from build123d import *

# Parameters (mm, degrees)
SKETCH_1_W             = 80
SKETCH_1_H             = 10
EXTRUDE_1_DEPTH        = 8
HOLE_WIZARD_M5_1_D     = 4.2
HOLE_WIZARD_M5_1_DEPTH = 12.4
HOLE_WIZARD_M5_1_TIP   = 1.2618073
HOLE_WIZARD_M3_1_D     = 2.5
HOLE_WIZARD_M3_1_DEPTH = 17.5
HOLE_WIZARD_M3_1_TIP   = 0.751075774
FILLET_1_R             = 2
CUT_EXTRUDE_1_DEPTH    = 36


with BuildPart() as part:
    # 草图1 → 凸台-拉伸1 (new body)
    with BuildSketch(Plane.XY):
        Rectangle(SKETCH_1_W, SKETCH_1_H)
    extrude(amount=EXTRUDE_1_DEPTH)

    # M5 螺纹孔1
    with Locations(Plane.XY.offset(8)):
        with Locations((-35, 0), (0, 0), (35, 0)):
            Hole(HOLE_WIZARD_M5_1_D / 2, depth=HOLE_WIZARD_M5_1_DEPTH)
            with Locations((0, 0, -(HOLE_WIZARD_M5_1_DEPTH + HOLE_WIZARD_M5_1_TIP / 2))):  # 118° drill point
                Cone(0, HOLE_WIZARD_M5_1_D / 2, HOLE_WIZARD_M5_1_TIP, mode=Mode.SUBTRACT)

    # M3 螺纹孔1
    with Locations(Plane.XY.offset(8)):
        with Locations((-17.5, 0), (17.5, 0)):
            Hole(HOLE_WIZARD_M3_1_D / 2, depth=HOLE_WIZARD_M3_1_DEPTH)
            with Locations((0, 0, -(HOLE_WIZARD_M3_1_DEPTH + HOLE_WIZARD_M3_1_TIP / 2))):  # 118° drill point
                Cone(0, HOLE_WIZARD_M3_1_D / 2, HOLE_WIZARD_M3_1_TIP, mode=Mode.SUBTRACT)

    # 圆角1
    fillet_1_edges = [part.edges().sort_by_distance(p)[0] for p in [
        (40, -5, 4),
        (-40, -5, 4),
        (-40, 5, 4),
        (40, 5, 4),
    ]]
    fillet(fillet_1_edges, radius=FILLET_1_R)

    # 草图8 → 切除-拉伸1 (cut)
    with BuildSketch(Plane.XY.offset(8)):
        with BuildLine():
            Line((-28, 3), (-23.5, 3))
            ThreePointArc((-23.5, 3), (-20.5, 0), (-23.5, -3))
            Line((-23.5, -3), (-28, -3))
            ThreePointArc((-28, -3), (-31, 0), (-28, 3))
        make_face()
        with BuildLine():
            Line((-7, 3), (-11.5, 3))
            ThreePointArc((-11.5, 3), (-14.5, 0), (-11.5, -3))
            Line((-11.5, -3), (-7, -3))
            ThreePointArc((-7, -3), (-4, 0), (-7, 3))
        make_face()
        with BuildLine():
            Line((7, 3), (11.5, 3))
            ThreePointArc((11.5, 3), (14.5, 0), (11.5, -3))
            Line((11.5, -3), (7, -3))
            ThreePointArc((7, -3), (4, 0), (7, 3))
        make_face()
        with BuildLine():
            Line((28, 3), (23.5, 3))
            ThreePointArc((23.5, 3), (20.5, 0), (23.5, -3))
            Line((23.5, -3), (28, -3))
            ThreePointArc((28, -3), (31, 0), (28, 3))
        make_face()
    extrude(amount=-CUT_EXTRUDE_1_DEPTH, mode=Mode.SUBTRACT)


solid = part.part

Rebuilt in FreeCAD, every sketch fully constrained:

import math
import FreeCAD as App
import Part
import Sketcher

V = App.Vector
Q = App.Units.Quantity


def edges_at(feature, points):
    """Names of the edges that pass closest to the given points."""
    edges = feature.Shape.Edges
    near = lambda p: min(range(len(edges)), key=lambda i: edges[i].distToShape(Part.Vertex(*p))[0])
    return sorted({f"Edge{near(p) + 1}" for p in points})

doc = App.newDocument("Part")
body = doc.addObject("PartDesign::Body", "Body")

# Sketch on XY plane
sketch1 = doc.addObject("Sketcher::SketchObject", "Sketch")
body.addObject(sketch1)
sketch1.AttachmentSupport = (doc.XY_Plane, [""])
sketch1.MapMode = "FlatFace"
sketch1.addGeometry(Part.LineSegment(V(-40, 5, 0), V(-40, -5, 0)), False)
sketch1.addGeometry(Part.LineSegment(V(-40, -5, 0), V(40, -5, 0)), False)
sketch1.addGeometry(Part.LineSegment(V(40, -5, 0), V(40, 5, 0)), False)
sketch1.addGeometry(Part.LineSegment(V(40, 5, 0), V(-40, 5, 0)), False)
sketch1.addConstraint(Sketcher.Constraint("Coincident", 0, 2, 1, 1))
sketch1.addConstraint(Sketcher.Constraint("Coincident", 1, 2, 2, 1))
sketch1.addConstraint(Sketcher.Constraint("Coincident", 2, 2, 3, 1))
sketch1.addConstraint(Sketcher.Constraint("Coincident", 3, 2, 0, 1))
sketch1.addConstraint(Sketcher.Constraint("Vertical", 0))
sketch1.addConstraint(Sketcher.Constraint("Horizontal", 1))
sketch1.addConstraint(Sketcher.Constraint("Vertical", 2))
sketch1.addConstraint(Sketcher.Constraint("Horizontal", 3))
sketch1.addConstraint(Sketcher.Constraint("Symmetric", 0, 2, 2, 2, -1, 1))
sketch1.addConstraint(Sketcher.Constraint("DistanceX", 1, 1, 1, 2, Q("80 mm")))
sketch1.addConstraint(Sketcher.Constraint("DistanceY", 0, 2, 0, 1, Q("10 mm")))
pad1 = doc.addObject("PartDesign::Pad", "Pad")
body.addObject(pad1)
pad1.Profile = sketch1
pad1.Length = 8

# Sketch on XY plane
sketch2 = doc.addObject("Sketcher::SketchObject", "Sketch001")
body.addObject(sketch2)
sketch2.AttachmentSupport = (doc.XY_Plane, [""])
sketch2.MapMode = "FlatFace"
sketch2.AttachmentOffset = App.Placement(V(0, 0, 8), App.Rotation())
sketch2.addGeometry(Part.Circle(V(-35, 0, 0), V(0, 0, 1), 2.1), False)
sketch2.addGeometry(Part.Circle(V(0, 0, 0), V(0, 0, 1), 2.1), False)
sketch2.addGeometry(Part.Circle(V(35, 0, 0), V(0, 0, 1), 2.1), False)
sketch2.addConstraint(Sketcher.Constraint("Coincident", 1, 3, -1, 1))
sketch2.addConstraint(Sketcher.Constraint("Equal", 0, 1))
sketch2.addConstraint(Sketcher.Constraint("Equal", 1, 2))
sketch2.addConstraint(Sketcher.Constraint("Symmetric", 0, 3, 2, 3, -1, 1))
sketch2.addConstraint(Sketcher.Constraint("PointOnObject", 0, 3, -1))
sketch2.addConstraint(Sketcher.Constraint("Diameter", 0, Q("4.2 mm")))
sketch2.addConstraint(Sketcher.Constraint("DistanceX", 0, 3, -1, 1, Q("35 mm")))
doc.recompute()
hole = doc.addObject("PartDesign::Hole", "Hole")
body.addObject(hole)
hole.Profile = sketch2
hole.ThreadType = "None"
hole.Diameter = 4.2
hole.DepthType = "Dimension"
hole.Depth = 12.4
hole.DrillPoint = "Angled"
hole.DrillPointAngle = 118

# Sketch on XY plane
sketch3 = doc.addObject("Sketcher::SketchObject", "Sketch002")
body.addObject(sketch3)
sketch3.AttachmentSupport = (doc.XY_Plane, [""])
sketch3.MapMode = "FlatFace"
sketch3.AttachmentOffset = App.Placement(V(0, 0, 8), App.Rotation())
sketch3.addGeometry(Part.Circle(V(-17.5, 0, 0), V(0, 0, 1), 1.2), False)
sketch3.addGeometry(Part.Circle(V(17.5, 0, 0), V(0, 0, 1), 1.2), False)
sketch3.addConstraint(Sketcher.Constraint("Equal", 0, 1))
sketch3.addConstraint(Sketcher.Constraint("Symmetric", 0, 3, 1, 3, -1, 1))
sketch3.addConstraint(Sketcher.Constraint("PointOnObject", 0, 3, -1))
sketch3.addConstraint(Sketcher.Constraint("Diameter", 0, Q("2.5 mm")))
sketch3.addConstraint(Sketcher.Constraint("DistanceX", 0, 3, 1, 3, Q("35 mm")))
doc.recompute()
hole2 = doc.addObject("PartDesign::Hole", "Hole001")
body.addObject(hole2)
hole2.Profile = sketch3
hole2.ThreadType = "None"
hole2.Diameter = 2.5
hole2.DepthType = "Dimension"
hole2.Depth = 17.5
hole2.DrillPoint = "Angled"
hole2.DrillPointAngle = 118
doc.recompute()

fillet = doc.addObject("PartDesign::Fillet", "Fillet")
body.addObject(fillet)
fillet.Base = (hole2, edges_at(hole2, [
    (40, -5, 4),
    (-40, -5, 4),
    (-40, 5, 4),
    (40, 5, 4),
]))
fillet.Radius = 2

# Sketch on XY plane
sketch4 = doc.addObject("Sketcher::SketchObject", "Sketch003")
body.addObject(sketch4)
sketch4.AttachmentSupport = (doc.XY_Plane, [""])
sketch4.MapMode = "FlatFace"
sketch4.AttachmentOffset = App.Placement(V(0, 0, 8), App.Rotation())
sketch4.addGeometry(Part.LineSegment(V(-23.5, 3, 0), V(-28, 3, 0)), False)
sketch4.addGeometry(Part.ArcOfCircle(Part.Circle(V(-28, 0, 0), V(0, 0, 1), 3), math.radians(90), math.radians(270)), False)
sketch4.addGeometry(Part.LineSegment(V(-28, -3, 0), V(-23.5, -3, 0)), False)
sketch4.addGeometry(Part.ArcOfCircle(Part.Circle(V(-23.5, 0, 0), V(0, 0, 1), 3), math.radians(-90), math.radians(90)), False)
sketch4.addGeometry(Part.LineSegment(V(-7, 3, 0), V(-11.5, 3, 0)), False)
sketch4.addGeometry(Part.ArcOfCircle(Part.Circle(V(-11.5, 0, 0), V(0, 0, 1), 3), math.radians(90), math.radians(270)), False)
sketch4.addGeometry(Part.LineSegment(V(-11.5, -3, 0), V(-7, -3, 0)), False)
sketch4.addGeometry(Part.ArcOfCircle(Part.Circle(V(-7, 0, 0), V(0, 0, 1), 3), math.radians(-90), math.radians(90)), False)
sketch4.addGeometry(Part.LineSegment(V(11.5, 3, 0), V(7, 3, 0)), False)
sketch4.addGeometry(Part.ArcOfCircle(Part.Circle(V(7, 0, 0), V(0, 0, 1), 3), math.radians(90), math.radians(270)), False)
sketch4.addGeometry(Part.LineSegment(V(7, -3, 0), V(11.5, -3, 0)), False)
sketch4.addGeometry(Part.ArcOfCircle(Part.Circle(V(11.5, 0, 0), V(0, 0, 1), 3), math.radians(-90), math.radians(90)), False)
sketch4.addGeometry(Part.LineSegment(V(28, 3, 0), V(23.5, 3, 0)), False)
sketch4.addGeometry(Part.ArcOfCircle(Part.Circle(V(23.5, 0, 0), V(0, 0, 1), 3), math.radians(90), math.radians(270)), False)
sketch4.addGeometry(Part.LineSegment(V(23.5, -3, 0), V(28, -3, 0)), False)
sketch4.addGeometry(Part.ArcOfCircle(Part.Circle(V(28, 0, 0), V(0, 0, 1), 3), math.radians(-90), math.radians(90)), False)
sketch4.addConstraint(Sketcher.Constraint("Tangent", 0, 2, 1, 1))
sketch4.addConstraint(Sketcher.Constraint("Tangent", 1, 2, 2, 1))
sketch4.addConstraint(Sketcher.Constraint("Tangent", 2, 2, 3, 1))
sketch4.addConstraint(Sketcher.Constraint("Tangent", 3, 2, 0, 1))
sketch4.addConstraint(Sketcher.Constraint("Tangent", 4, 2, 5, 1))
sketch4.addConstraint(Sketcher.Constraint("Tangent", 5, 2, 6, 1))
sketch4.addConstraint(Sketcher.Constraint("Tangent", 6, 2, 7, 1))
sketch4.addConstraint(Sketcher.Constraint("Tangent", 7, 2, 4, 1))
sketch4.addConstraint(Sketcher.Constraint("Tangent", 8, 2, 9, 1))
sketch4.addConstraint(Sketcher.Constraint("Tangent", 9, 2, 10, 1))
sketch4.addConstraint(Sketcher.Constraint("Tangent", 10, 2, 11, 1))
sketch4.addConstraint(Sketcher.Constraint("Tangent", 11, 2, 8, 1))
sketch4.addConstraint(Sketcher.Constraint("Tangent", 12, 2, 13, 1))
sketch4.addConstraint(Sketcher.Constraint("Tangent", 13, 2, 14, 1))
sketch4.addConstraint(Sketcher.Constraint("Tangent", 14, 2, 15, 1))
sketch4.addConstraint(Sketcher.Constraint("Tangent", 15, 2, 12, 1))
sketch4.addConstraint(Sketcher.Constraint("Horizontal", 0))
sketch4.addConstraint(Sketcher.Constraint("Horizontal", 2))
sketch4.addConstraint(Sketcher.Constraint("Horizontal", 4))
sketch4.addConstraint(Sketcher.Constraint("Horizontal", 6))
sketch4.addConstraint(Sketcher.Constraint("Horizontal", 8))
sketch4.addConstraint(Sketcher.Constraint("Horizontal", 10))
sketch4.addConstraint(Sketcher.Constraint("Horizontal", 12))
sketch4.addConstraint(Sketcher.Constraint("Horizontal", 14))
sketch4.addConstraint(Sketcher.Constraint("Equal", 3, 5))
sketch4.addConstraint(Sketcher.Constraint("Equal", 7, 9))
sketch4.addConstraint(Sketcher.Constraint("Equal", 11, 13))
sketch4.addConstraint(Sketcher.Constraint("Symmetric", 7, 3, 9, 3, -1, 1))
sketch4.addConstraint(Sketcher.Constraint("Symmetric", 3, 3, 13, 3, -1, 1))
sketch4.addConstraint(Sketcher.Constraint("Symmetric", 5, 3, 11, 3, -2))
sketch4.addConstraint(Sketcher.Constraint("Symmetric", 1, 3, 15, 3, -2))
sketch4.addConstraint(Sketcher.Constraint("Equal", 2, 4))
sketch4.addConstraint(Sketcher.Constraint("Radius", 1, Q("3 mm")))
sketch4.addConstraint(Sketcher.Constraint("DistanceX", 0, 2, 0, 1, Q("4.5 mm")))
sketch4.addConstraint(Sketcher.Constraint("DistanceX", 1, 3, -1, 1, Q("28 mm")))
sketch4.addConstraint(Sketcher.Constraint("DistanceX", 7, 3, -1, 1, Q("7 mm")))
pocket1 = doc.addObject("PartDesign::Pocket", "Pocket")
body.addObject(pocket1)
pocket1.Profile = sketch4
pocket1.Length = 36

doc.recompute()
